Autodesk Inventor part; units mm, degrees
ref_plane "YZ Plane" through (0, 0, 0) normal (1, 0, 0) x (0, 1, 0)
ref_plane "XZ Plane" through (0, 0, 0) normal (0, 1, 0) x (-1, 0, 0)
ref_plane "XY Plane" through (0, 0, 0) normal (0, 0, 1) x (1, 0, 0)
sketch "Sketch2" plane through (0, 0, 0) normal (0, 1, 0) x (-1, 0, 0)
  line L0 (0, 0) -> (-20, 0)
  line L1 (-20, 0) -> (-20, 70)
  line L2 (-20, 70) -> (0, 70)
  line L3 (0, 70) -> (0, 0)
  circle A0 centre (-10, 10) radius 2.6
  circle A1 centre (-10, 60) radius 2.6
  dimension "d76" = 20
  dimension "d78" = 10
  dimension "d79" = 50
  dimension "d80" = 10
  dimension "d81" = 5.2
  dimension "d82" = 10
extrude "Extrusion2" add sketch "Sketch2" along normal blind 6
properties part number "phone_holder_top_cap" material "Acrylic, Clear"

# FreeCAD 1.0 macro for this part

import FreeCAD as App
import Part
import Sketcher
from FreeCAD import Vector


def add_polygon(sketch, points):
    """Adds a closed chain of lines whose ends are joined by coincident constraints."""
    first, n = sketch.GeometryCount, len(points)
    for a, b in zip(points, points[1:] + points[:1]):
        sketch.addGeometry(Part.LineSegment(App.Vector(*a, 0), App.Vector(*b, 0)), False)
    for i in range(n):
        sketch.addConstraint(Sketcher.Constraint("Coincident", first + i, 2, first + (i + 1) % n, 1))

doc = App.newDocument("Part")
params = doc.addObject("Spreadsheet::Sheet", "Params")
for row, (alias, value) in enumerate([
    ("sketch1_diameter", "5.2 mm"),
    ("sketch1_width", "20 mm"),
    ("pad1_length", "6 mm"),
], start=1):
    params.set(f"A{row}", alias)
    params.set(f"B{row}", "=" + value)
    params.setAlias(f"B{row}", alias)

body = doc.addObject("PartDesign::Body", "Body")

# Sketch on XZ plane
sketch1 = body.newObject("Sketcher::SketchObject", "Sketch")
sketch1.AttachmentSupport = (doc.getObject("XZ_Plane"), [""])
sketch1.MapMode = "FlatFace"
add_polygon(sketch1, [(20, 0), (0, 0), (0, 70), (20, 70)])  # lines 0-3
sketch1.addGeometry(Part.Circle(Vector(10, 10, 0), Vector(0, 0, 1), 2.6), False)  # 4
sketch1.addGeometry(Part.Circle(Vector(10, 60, 0), Vector(0, 0, 1), 2.6), False)  # 5
sketch1.addConstraint(Sketcher.Constraint("Horizontal", 0))
sketch1.addConstraint(Sketcher.Constraint("Vertical", 1))
sketch1.addConstraint(Sketcher.Constraint("Horizontal", 2))
sketch1.addConstraint(Sketcher.Constraint("Vertical", 3))
sketch1.addConstraint(Sketcher.Constraint("Coincident", 0, 2, -1, 1))
sketch1.addConstraint(Sketcher.Constraint("Equal", 4, 5))
sketch1.addConstraint(Sketcher.Constraint("Vertical", 4, 3, 5, 3))
sketch1.addConstraint(Sketcher.Constraint("Diameter", 4, 5.2))
sketch1.addConstraint(Sketcher.Constraint("DistanceX", 0, 2, 0, 1, 20.0))
sketch1.addConstraint(Sketcher.Constraint("DistanceX", -1, 1, 4, 3, 10.0))
sketch1.addConstraint(Sketcher.Constraint("DistanceY", -1, 1, 4, 3, 10.0))
sketch1.addConstraint(Sketcher.Constraint("DistanceY", 4, 3, 5, 3, 50.0))
sketch1.addConstraint(Sketcher.Constraint("DistanceY", 5, 3, 1, 2, 10.0))
sketch1.setExpression("Constraints[11]", "Params.sketch1_diameter")
sketch1.setExpression("Constraints[12]", "Params.sketch1_width")
pad1 = body.newObject("PartDesign::Pad", "Pad")
pad1.Profile = sketch1
pad1.setExpression("Length", "Params.pad1_length")
pad1.Reversed = True

doc.recompute()
